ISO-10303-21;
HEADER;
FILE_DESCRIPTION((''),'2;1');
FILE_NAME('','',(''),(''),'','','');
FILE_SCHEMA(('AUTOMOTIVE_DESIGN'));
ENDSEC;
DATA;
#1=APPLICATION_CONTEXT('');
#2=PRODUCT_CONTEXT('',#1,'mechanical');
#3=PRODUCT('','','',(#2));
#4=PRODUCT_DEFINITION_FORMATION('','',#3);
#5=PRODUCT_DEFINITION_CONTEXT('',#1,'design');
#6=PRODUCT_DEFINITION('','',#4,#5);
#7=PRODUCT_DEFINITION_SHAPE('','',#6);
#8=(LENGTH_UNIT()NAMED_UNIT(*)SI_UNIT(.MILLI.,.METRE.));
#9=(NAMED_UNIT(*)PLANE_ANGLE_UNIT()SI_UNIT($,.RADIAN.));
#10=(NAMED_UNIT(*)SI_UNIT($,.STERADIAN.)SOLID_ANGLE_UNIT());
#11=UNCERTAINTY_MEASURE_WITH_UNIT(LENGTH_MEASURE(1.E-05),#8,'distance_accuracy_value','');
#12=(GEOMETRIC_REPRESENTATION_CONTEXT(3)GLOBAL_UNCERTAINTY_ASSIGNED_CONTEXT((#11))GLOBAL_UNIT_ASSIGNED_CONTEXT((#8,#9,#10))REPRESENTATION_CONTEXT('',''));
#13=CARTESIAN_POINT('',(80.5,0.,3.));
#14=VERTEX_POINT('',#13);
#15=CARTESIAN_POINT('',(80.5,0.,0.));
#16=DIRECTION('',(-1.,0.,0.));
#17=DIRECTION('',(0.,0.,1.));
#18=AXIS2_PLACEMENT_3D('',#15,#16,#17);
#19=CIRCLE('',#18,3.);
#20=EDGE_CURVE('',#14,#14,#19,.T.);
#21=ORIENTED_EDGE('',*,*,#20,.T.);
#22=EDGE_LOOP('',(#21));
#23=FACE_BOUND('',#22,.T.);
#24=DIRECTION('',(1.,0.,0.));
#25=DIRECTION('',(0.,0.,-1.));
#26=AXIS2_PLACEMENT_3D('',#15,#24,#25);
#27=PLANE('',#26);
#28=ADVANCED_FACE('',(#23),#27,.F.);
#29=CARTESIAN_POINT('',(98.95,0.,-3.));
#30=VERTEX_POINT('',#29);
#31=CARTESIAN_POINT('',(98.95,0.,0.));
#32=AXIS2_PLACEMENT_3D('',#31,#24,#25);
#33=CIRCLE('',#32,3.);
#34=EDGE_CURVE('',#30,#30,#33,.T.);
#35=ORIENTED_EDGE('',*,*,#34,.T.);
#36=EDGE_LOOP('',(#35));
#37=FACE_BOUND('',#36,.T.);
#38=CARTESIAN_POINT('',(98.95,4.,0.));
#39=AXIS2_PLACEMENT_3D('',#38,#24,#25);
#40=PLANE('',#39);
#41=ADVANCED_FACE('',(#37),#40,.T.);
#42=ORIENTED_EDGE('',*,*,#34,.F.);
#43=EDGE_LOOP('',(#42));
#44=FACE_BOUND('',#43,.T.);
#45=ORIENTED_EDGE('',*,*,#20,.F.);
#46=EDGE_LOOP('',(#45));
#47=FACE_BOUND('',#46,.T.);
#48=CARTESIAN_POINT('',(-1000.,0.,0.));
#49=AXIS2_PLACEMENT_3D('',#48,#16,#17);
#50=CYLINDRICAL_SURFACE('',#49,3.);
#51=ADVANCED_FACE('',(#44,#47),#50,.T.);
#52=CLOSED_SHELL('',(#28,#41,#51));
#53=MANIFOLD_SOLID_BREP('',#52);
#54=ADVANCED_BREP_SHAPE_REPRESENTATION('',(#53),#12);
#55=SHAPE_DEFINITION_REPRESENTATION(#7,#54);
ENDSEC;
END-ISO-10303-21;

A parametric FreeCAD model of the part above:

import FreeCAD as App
import Part
import Sketcher
from FreeCAD import Vector
Q = App.Units.Quantity

doc = App.newDocument("Part")
body = doc.addObject("PartDesign::Body", "Body")

# Sketch on XY plane
sketch1 = body.newObject("Sketcher::SketchObject", "Sketch")
sketch1.AttachmentSupport = (doc.getObject("XY_Plane"), [""])
sketch1.MapMode = "FlatFace"
sketch1.addGeometry([
    Part.LineSegment(Vector(80.5, 3, 0), Vector(80.5, 0, 0)),
    Part.LineSegment(Vector(80.5, 0, 0), Vector(99.2, 0, 0)),
    Part.LineSegment(Vector(99.2, 0, 0), Vector(99.2, 3, 0)),
    Part.LineSegment(Vector(99.2, 3, 0), Vector(80.5, 3, 0)),
], False)
sketch1.addConstraint([
    Sketcher.Constraint("Coincident", 0, 2, 1, 1),
    Sketcher.Constraint("Coincident", 1, 2, 2, 1),
    Sketcher.Constraint("Coincident", 2, 2, 3, 1),
    Sketcher.Constraint("Coincident", 3, 2, 0, 1),
    Sketcher.Constraint("Vertical", 0),
    Sketcher.Constraint("Horizontal", 1),
    Sketcher.Constraint("Vertical", 2),
    Sketcher.Constraint("Horizontal", 3),
    Sketcher.Constraint("PointOnObject", 0, 2, -1),
    Sketcher.Constraint("DistanceY", 0, 2, 0, 1, Q("3 mm")),
    Sketcher.Constraint("DistanceX", 1, 1, 1, 2, Q("18.75 mm")),
    Sketcher.Constraint("DistanceX", -1, 1, 0, 2, Q("80.5 mm")),
])
revolution = body.newObject("PartDesign::Revolution", "Revolution")
revolution.Profile = sketch1
revolution.ReferenceAxis = (sketch1, ["H_Axis"])
revolution.Angle = 360

# Sketch on XY plane
sketch2 = body.newObject("Sketcher::SketchObject", "Sketch001")
sketch2.AttachmentSupport = (doc.getObject("XY_Plane"), [""])
sketch2.MapMode = "FlatFace"
sketch2.addGeometry([
    Part.LineSegment(Vector(99, 4, 0), Vector(99, 0, 0)),
    Part.LineSegment(Vector(99, 0, 0), Vector(100.2, 0, 0)),
    Part.LineSegment(Vector(100.2, 0, 0), Vector(100.2, 4, 0)),
    Part.LineSegment(Vector(100.2, 4, 0), Vector(99, 4, 0)),
], False)
sketch2.addConstraint([
    Sketcher.Constraint("Coincident", 0, 2, 1, 1),
    Sketcher.Constraint("Coincident", 1, 2, 2, 1),
    Sketcher.Constraint("Coincident", 2, 2, 3, 1),
    Sketcher.Constraint("Coincident", 3, 2, 0, 1),
    Sketcher.Constraint("Vertical", 0),
    Sketcher.Constraint("Horizontal", 1),
    Sketcher.Constraint("Vertical", 2),
    Sketcher.Constraint("Horizontal", 3),
    Sketcher.Constraint("PointOnObject", 0, 2, -1),
    Sketcher.Constraint("DistanceY", 0, 2, 0, 1, Q("4 mm")),
    Sketcher.Constraint("DistanceX", 1, 1, 1, 2, Q("1.3 mm")),
    Sketcher.Constraint("DistanceX", -1, 1, 0, 2, Q("98.95 mm")),
])
groove = body.newObject("PartDesign::Groove", "Groove")
groove.Profile = sketch2
groove.ReferenceAxis = (sketch2, ["H_Axis"])
groove.Angle = 360

doc.recompute()
